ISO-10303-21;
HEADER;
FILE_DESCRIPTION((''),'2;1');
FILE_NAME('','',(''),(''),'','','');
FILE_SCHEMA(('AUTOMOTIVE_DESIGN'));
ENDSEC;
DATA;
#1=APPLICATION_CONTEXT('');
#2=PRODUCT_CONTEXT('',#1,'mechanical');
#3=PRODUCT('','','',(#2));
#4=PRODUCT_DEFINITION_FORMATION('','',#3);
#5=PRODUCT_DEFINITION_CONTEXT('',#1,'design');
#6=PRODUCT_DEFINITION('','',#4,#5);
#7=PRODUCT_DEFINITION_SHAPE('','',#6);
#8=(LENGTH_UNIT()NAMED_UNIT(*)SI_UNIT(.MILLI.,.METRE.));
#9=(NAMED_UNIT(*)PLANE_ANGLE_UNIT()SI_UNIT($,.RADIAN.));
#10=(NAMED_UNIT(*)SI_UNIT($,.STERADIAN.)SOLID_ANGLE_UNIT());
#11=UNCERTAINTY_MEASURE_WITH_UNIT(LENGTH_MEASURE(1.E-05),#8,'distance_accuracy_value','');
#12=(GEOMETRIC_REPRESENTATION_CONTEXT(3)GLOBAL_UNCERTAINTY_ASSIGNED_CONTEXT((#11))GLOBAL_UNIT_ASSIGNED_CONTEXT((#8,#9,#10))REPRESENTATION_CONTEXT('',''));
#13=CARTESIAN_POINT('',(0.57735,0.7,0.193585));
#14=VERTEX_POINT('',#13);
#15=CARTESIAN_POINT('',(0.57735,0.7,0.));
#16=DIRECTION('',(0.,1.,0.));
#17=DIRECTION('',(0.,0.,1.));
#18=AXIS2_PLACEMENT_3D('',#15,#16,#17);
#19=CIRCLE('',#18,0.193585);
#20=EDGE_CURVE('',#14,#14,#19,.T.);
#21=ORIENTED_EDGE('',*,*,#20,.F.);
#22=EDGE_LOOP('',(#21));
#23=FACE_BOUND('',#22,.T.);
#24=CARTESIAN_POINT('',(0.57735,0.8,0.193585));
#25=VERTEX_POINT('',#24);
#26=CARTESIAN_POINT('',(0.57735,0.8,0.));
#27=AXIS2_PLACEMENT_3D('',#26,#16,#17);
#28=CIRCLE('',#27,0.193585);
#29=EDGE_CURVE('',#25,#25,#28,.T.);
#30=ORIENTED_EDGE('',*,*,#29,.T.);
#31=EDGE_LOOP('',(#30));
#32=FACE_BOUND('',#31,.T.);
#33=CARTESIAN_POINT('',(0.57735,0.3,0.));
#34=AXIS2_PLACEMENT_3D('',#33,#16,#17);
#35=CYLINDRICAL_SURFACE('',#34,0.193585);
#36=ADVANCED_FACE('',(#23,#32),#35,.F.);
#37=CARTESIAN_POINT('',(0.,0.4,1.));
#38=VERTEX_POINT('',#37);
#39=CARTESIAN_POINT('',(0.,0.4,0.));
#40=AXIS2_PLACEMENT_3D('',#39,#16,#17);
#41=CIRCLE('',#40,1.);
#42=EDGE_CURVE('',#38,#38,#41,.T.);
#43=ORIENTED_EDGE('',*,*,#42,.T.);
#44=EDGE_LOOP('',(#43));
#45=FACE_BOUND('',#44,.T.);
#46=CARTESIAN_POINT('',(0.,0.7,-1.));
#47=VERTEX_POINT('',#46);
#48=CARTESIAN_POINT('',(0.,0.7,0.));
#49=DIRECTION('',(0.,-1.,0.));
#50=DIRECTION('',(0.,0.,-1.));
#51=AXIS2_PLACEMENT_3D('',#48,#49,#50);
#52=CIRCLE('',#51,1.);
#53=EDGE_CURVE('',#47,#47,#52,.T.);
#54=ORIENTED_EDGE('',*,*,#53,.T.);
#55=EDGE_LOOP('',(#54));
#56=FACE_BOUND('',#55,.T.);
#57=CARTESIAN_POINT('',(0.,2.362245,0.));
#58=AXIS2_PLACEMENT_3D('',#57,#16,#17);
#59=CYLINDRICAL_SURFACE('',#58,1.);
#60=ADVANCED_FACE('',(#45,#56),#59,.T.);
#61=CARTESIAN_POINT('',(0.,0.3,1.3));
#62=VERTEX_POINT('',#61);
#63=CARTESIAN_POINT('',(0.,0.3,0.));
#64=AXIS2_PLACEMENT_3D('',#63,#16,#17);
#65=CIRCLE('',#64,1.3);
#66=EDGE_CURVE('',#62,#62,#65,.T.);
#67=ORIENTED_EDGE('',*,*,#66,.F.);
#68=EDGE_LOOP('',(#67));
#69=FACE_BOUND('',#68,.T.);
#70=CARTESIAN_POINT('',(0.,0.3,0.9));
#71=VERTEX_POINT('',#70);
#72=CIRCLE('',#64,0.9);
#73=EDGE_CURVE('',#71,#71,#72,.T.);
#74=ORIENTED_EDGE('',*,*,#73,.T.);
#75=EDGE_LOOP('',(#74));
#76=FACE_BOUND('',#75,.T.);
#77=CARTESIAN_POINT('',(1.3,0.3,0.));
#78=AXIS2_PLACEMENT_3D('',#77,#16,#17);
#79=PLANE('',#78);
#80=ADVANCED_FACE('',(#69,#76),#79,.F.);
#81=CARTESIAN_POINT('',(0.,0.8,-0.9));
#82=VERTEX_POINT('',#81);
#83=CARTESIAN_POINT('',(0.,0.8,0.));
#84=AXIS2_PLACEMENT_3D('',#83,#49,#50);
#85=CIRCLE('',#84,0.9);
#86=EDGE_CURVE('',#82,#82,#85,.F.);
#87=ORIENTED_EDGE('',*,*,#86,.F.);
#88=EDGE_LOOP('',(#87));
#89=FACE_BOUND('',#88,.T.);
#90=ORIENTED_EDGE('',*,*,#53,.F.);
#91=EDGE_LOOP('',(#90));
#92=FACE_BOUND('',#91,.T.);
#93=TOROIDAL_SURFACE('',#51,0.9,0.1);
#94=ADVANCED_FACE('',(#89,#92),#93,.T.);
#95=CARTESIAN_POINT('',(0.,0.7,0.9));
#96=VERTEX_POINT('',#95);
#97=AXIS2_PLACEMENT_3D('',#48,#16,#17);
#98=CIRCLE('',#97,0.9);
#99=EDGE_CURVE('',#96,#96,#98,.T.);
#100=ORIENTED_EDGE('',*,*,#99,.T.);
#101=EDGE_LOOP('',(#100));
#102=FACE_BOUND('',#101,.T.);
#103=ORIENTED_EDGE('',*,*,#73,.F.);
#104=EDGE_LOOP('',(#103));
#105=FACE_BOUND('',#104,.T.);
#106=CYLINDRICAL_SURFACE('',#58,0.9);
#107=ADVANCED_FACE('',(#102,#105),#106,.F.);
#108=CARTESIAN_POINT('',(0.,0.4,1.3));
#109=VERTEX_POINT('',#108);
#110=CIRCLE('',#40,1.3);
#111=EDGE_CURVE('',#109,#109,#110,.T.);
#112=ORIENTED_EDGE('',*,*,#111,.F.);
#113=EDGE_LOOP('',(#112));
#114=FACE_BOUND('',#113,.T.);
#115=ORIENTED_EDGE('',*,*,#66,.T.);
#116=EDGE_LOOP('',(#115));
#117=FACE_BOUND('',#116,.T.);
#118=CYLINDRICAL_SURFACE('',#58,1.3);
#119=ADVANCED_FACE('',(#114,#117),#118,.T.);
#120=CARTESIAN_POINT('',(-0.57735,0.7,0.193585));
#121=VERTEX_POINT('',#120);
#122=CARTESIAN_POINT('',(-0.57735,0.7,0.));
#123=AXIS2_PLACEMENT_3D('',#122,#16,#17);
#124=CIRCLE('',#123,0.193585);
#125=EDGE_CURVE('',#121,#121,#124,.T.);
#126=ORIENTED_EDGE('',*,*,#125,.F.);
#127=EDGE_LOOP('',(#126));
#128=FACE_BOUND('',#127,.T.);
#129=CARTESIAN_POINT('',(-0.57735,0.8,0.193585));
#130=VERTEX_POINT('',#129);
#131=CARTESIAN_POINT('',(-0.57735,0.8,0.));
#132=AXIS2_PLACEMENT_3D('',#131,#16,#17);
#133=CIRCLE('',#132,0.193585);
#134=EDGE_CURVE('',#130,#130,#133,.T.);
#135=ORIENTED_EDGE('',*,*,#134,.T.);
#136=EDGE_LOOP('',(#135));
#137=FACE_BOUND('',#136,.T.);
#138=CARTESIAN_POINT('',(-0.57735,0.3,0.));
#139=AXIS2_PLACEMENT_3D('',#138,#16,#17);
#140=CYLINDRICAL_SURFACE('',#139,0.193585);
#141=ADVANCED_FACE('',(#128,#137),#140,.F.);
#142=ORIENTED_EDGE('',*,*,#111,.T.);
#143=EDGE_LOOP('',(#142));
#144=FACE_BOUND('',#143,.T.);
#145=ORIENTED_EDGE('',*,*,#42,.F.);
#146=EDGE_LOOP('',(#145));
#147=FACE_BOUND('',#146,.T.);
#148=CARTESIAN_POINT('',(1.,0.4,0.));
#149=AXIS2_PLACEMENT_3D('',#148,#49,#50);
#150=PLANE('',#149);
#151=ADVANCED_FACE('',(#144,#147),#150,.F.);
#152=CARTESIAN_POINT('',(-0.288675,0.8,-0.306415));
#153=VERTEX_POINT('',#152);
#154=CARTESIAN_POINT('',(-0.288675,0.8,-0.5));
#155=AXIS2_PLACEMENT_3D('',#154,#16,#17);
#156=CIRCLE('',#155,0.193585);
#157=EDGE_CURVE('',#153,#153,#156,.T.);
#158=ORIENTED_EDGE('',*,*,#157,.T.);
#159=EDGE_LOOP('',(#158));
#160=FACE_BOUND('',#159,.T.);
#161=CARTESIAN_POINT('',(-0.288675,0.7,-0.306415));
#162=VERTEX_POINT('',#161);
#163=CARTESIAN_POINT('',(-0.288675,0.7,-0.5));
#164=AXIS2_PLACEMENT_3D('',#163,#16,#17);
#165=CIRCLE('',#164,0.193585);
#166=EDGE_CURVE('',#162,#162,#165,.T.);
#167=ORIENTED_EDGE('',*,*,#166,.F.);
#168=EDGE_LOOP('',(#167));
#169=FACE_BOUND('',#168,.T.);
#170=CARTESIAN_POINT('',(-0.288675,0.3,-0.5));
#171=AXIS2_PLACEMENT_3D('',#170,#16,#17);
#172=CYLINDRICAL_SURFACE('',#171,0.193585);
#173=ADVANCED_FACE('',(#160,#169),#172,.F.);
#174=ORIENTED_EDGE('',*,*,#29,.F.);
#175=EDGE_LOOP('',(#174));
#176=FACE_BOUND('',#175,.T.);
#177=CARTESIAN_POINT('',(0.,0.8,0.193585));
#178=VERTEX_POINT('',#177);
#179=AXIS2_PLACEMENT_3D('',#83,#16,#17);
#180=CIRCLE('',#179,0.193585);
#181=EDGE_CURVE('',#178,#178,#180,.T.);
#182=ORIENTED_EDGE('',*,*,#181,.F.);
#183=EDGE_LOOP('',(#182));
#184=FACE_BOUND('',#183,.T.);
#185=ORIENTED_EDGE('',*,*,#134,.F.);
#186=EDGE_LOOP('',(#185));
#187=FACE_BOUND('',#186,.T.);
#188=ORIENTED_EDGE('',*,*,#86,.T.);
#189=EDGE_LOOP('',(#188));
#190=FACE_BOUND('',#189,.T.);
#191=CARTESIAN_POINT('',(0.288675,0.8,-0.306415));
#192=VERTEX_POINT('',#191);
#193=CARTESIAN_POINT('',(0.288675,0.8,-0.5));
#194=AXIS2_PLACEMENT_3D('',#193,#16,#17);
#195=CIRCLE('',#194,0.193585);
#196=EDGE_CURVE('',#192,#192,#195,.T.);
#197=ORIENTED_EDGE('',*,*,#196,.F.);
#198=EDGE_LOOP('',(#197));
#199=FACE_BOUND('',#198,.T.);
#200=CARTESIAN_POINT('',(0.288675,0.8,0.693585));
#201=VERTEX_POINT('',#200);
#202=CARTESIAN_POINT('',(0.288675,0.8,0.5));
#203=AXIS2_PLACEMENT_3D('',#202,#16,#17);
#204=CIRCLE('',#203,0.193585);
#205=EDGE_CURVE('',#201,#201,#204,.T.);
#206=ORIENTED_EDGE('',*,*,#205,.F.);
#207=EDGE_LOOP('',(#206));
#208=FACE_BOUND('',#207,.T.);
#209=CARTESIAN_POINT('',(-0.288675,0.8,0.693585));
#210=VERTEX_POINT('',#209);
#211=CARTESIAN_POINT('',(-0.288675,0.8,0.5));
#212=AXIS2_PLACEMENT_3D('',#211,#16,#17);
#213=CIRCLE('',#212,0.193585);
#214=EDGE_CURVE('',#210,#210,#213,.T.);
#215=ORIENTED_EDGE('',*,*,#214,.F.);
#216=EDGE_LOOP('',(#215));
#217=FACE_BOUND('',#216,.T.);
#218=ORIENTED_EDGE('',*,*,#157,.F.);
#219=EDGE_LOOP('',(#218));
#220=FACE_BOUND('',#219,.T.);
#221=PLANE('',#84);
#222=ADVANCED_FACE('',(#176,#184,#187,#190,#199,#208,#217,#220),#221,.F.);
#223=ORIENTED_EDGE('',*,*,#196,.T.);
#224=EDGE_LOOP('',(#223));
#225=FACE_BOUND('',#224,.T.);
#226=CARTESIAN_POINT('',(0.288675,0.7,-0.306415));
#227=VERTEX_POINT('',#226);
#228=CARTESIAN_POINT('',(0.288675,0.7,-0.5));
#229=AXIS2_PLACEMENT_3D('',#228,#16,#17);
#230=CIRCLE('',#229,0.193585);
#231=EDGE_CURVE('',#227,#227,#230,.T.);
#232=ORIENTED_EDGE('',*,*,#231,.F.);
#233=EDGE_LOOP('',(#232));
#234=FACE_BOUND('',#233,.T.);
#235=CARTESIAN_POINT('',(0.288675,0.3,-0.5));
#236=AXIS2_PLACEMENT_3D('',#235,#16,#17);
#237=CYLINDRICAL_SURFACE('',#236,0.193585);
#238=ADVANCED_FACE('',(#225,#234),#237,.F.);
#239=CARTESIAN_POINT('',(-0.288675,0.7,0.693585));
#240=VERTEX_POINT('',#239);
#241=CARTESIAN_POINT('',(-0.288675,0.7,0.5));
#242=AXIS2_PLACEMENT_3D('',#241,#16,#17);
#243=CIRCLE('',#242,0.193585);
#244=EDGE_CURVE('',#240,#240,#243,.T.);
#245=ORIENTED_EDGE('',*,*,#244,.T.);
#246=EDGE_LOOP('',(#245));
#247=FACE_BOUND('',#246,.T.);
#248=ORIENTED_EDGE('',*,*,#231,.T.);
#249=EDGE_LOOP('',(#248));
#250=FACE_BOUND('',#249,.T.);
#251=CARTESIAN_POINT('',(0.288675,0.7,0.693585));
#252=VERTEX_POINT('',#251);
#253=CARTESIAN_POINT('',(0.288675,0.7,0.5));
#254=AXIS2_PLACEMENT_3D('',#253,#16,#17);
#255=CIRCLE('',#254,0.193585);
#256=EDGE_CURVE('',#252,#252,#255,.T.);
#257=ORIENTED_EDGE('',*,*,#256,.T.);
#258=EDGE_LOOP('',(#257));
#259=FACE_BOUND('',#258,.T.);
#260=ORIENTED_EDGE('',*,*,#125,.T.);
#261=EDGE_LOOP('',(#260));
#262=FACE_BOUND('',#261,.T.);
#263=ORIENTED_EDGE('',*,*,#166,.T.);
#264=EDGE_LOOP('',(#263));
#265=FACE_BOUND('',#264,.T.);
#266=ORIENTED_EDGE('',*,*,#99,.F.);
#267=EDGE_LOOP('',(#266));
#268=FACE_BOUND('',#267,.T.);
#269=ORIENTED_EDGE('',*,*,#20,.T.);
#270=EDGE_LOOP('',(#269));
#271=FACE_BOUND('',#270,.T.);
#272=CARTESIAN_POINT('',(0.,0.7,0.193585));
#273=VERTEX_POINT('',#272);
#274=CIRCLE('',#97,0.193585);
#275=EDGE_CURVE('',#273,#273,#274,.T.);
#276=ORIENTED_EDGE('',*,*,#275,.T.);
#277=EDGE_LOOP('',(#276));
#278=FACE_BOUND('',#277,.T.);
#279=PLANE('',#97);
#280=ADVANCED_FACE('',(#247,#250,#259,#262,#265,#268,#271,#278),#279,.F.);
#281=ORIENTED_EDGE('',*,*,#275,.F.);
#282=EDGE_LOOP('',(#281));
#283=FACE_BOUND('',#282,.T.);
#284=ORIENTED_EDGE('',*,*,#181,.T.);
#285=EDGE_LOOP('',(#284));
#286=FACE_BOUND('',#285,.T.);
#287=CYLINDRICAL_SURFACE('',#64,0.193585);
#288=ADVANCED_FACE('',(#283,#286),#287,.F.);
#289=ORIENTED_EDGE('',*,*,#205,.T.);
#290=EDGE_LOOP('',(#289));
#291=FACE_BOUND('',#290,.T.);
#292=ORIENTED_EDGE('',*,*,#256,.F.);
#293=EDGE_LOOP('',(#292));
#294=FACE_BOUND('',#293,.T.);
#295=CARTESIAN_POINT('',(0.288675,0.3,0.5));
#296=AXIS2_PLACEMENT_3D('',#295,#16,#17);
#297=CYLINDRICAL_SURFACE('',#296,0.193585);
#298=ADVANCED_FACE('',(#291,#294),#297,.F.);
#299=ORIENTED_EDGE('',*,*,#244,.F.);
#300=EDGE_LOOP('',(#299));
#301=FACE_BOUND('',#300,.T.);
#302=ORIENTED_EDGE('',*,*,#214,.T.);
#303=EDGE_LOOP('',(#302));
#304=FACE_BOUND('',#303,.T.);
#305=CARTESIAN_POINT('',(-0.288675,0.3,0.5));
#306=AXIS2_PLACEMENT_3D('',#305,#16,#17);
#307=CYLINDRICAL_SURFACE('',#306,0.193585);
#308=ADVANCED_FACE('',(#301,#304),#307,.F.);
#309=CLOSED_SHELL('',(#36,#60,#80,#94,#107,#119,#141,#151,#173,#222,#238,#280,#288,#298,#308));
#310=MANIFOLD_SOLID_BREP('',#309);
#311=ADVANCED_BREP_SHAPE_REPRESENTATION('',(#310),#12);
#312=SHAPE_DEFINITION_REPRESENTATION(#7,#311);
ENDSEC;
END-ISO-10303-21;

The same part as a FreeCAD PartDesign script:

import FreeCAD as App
import Part
import Sketcher

V = App.Vector
Q = App.Units.Quantity


def edges_at(feature, points):
    """Names of the edges that pass closest to the given points."""
    edges = feature.Shape.Edges
    near = lambda p: min(range(len(edges)), key=lambda i: edges[i].distToShape(Part.Vertex(*p))[0])
    return sorted({f"Edge{near(p) + 1}" for p in points})

doc = App.newDocument("Part")
body = doc.addObject("PartDesign::Body", "Body")

sketch1 = body.newObject("Sketcher::SketchObject", "Sketch")
sketch1.AttachmentSupport = (doc.getObject("XY_Plane"), [""])
sketch1.MapMode = "FlatFace"
sketch1.addGeometry([
    Part.LineSegment(V(1, 0.8, 0), V(0, 0.8, 0)),
    Part.LineSegment(V(0, 0.8, 0), V(0, 0.7, 0)),
    Part.LineSegment(V(0, 0.7, 0), V(0.9, 0.7, 0)),
    Part.LineSegment(V(0.9, 0.7, 0), V(0.9, 0.3, 0)),
    Part.LineSegment(V(0.9, 0.3, 0), V(1.3, 0.3, 0)),
    Part.LineSegment(V(1.3, 0.3, 0), V(1.3, 0.4, 0)),
    Part.LineSegment(V(1.3, 0.4, 0), V(1, 0.4, 0)),
    Part.LineSegment(V(1, 0.4, 0), V(1, 0.8, 0)),
], False)
sketch1.addConstraint([
    Sketcher.Constraint("Coincident", 0, 2, 1, 1),
    Sketcher.Constraint("Coincident", 1, 2, 2, 1),
    Sketcher.Constraint("Coincident", 2, 2, 3, 1),
    Sketcher.Constraint("Coincident", 3, 2, 4, 1),
    Sketcher.Constraint("Coincident", 4, 2, 5, 1),
    Sketcher.Constraint("Coincident", 5, 2, 6, 1),
    Sketcher.Constraint("Coincident", 6, 2, 7, 1),
    Sketcher.Constraint("Coincident", 7, 2, 0, 1),
    Sketcher.Constraint("Horizontal", 0),
    Sketcher.Constraint("Vertical", 1),
    Sketcher.Constraint("Horizontal", 2),
    Sketcher.Constraint("Vertical", 3),
    Sketcher.Constraint("Horizontal", 4),
    Sketcher.Constraint("Vertical", 5),
    Sketcher.Constraint("Horizontal", 6),
    Sketcher.Constraint("Vertical", 7),
    Sketcher.Constraint("PointOnObject", 0, 2, -2),
    Sketcher.Constraint("Equal", 4, 3),
    Sketcher.Constraint("Equal", 1, 5),
    Sketcher.Constraint("DistanceX", 0, 2, 0, 1, Q("1 mm")),
    Sketcher.Constraint("DistanceX", 2, 1, 2, 2, Q("0.9 mm")),
    Sketcher.Constraint("DistanceX", 4, 1, 4, 2, Q("0.4 mm")),
    Sketcher.Constraint("DistanceY", 1, 2, 1, 1, Q("0.1 mm")),
    Sketcher.Constraint("DistanceY", -1, 1, 0, 2, Q("0.8 mm")),
])
revolution = body.newObject("PartDesign::Revolution", "Revolution")
revolution.Profile = sketch1
revolution.ReferenceAxis = (sketch1, ["V_Axis"])
revolution.Angle = 360
doc.recompute()

fillet = body.newObject("PartDesign::Fillet", "Fillet")
fillet.Base = (revolution, edges_at(revolution, [(0, 0.8, -1)]))
fillet.Radius = 0.1

sketch2 = body.newObject("Sketcher::SketchObject", "Sketch001")
sketch2.AttachmentSupport = (doc.getObject("XZ_Plane"), [""])
sketch2.MapMode = "FlatFace"
sketch2.AttachmentOffset = App.Placement(V(0, 0, -0.8), App.Rotation())
sketch2.addGeometry([
    Part.Circle(V(0, 0, 0), V(0, 0, 1), 0.19),
    Part.Circle(V(-0.29, -0.5, 0), V(0, 0, 1), 0.19),
    Part.Circle(V(0.29, -0.5, 0), V(0, 0, 1), 0.19),
    Part.Circle(V(0.58, 0, 0), V(0, 0, 1), 0.19),
    Part.Circle(V(0.29, 0.5, 0), V(0, 0, 1), 0.19),
    Part.Circle(V(-0.29, 0.5, 0), V(0, 0, 1), 0.19),
    Part.Circle(V(-0.58, 0, 0), V(0, 0, 1), 0.19),
], False)
sketch2.addConstraint([
    Sketcher.Constraint("Coincident", 0, 3, -1, 1),
    Sketcher.Constraint("Equal", 0, 1),
    Sketcher.Constraint("Equal", 1, 2),
    Sketcher.Constraint("Equal", 2, 3),
    Sketcher.Constraint("Equal", 3, 4),
    Sketcher.Constraint("Equal", 4, 5),
    Sketcher.Constraint("Equal", 5, 6),
    Sketcher.Constraint("Symmetric", 1, 3, 4, 3, -1, 1),
    Sketcher.Constraint("Symmetric", 2, 3, 5, 3, -1, 1),
    Sketcher.Constraint("Symmetric", 3, 3, 6, 3, -1, 1),
    Sketcher.Constraint("Symmetric", 1, 3, 2, 3, -2),
    Sketcher.Constraint("PointOnObject", 3, 3, -1),
    Sketcher.Constraint("DistanceY", 2, 3, 4, 3, Q("1 mm")),
    Sketcher.Constraint("Diameter", 0, Q("0.38717 mm")),
    Sketcher.Constraint("DistanceX", -1, 1, 3, 3, Q("0.57735 mm")),
    Sketcher.Constraint("DistanceX", 1, 3, 2, 3, Q("0.57735 mm")),
])
pocket1 = body.newObject("PartDesign::Pocket", "Pocket")
pocket1.Profile = sketch2
pocket1.Type = "ThroughAll"
pocket1.Reversed = True

doc.recompute()
